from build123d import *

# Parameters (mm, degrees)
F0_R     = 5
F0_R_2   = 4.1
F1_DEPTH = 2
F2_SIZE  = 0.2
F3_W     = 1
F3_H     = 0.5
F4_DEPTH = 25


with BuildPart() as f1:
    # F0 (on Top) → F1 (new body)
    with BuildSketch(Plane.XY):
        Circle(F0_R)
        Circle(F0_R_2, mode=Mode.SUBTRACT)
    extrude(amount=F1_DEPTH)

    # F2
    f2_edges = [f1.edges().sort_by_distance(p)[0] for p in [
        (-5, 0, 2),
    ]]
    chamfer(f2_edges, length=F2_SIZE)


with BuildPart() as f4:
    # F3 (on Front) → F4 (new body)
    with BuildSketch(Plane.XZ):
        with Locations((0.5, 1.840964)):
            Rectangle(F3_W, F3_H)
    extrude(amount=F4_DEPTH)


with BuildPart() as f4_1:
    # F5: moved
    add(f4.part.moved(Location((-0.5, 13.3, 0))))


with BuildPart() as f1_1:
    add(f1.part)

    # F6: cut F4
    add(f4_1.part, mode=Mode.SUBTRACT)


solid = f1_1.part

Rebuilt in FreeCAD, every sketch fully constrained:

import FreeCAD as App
import Part
import Sketcher
from FreeCAD import Vector
Q = App.Units.Quantity


def edges_at(feature, points):
    """Names of the edges that pass closest to the given points."""
    edges = feature.Shape.Edges
    near = lambda p: min(range(len(edges)), key=lambda i: edges[i].distToShape(Part.Vertex(*p))[0])
    return sorted({f"Edge{near(p) + 1}" for p in points})


def add_polygon(sketch, points):
    """Adds a closed chain of lines whose ends are joined by coincident constraints."""
    first, n = sketch.GeometryCount, len(points)
    for a, b in zip(points, points[1:] + points[:1]):
        sketch.addGeometry(Part.LineSegment(App.Vector(*a, 0), App.Vector(*b, 0)), False)
    for i in range(n):
        sketch.addConstraint(Sketcher.Constraint("Coincident", first + i, 2, first + (i + 1) % n, 1))

doc = App.newDocument("Part")
body = doc.addObject("PartDesign::Body", "Body")

# Sketch on XY plane
sketch1 = doc.addObject("Sketcher::SketchObject", "Sketch")
body.addObject(sketch1)
sketch1.AttachmentSupport = (doc.XY_Plane, [""])
sketch1.MapMode = "FlatFace"
sketch1.addGeometry(Part.Circle(Vector(0, 0, 0), Vector(0, 0, 1), 5), False)
sketch1.addGeometry(Part.Circle(Vector(0, 0, 0), Vector(0, 0, 1), 4.1), False)
sketch1.addConstraint(Sketcher.Constraint("Coincident", 0, 3, -1, 1))
sketch1.addConstraint(Sketcher.Constraint("Coincident", 1, 3, -1, 1))
sketch1.addConstraint(Sketcher.Constraint("Diameter", 0, Q("10 mm")))
sketch1.addConstraint(Sketcher.Constraint("Diameter", 1, Q("8.2 mm")))
pad1 = doc.addObject("PartDesign::Pad", "Pad")
body.addObject(pad1)
pad1.Profile = sketch1
pad1.Length = 2
doc.recompute()

chamfer = doc.addObject("PartDesign::Chamfer", "Chamfer")
body.addObject(chamfer)
chamfer.Base = (pad1, edges_at(pad1, [(-5, 0, 2)]))
chamfer.Size = 0.2
body2 = doc.addObject("PartDesign::Body", "Body001")

# Sketch on XZ plane
sketch2 = doc.addObject("Sketcher::SketchObject", "Sketch001")
body2.addObject(sketch2)
sketch2.AttachmentSupport = (doc.getObject("XZ_Plane001"), [""])
sketch2.MapMode = "FlatFace"
add_polygon(sketch2, [(0, 2.090964), (0, 1.590964), (1, 1.590964), (1, 2.090964)])  # lines 0-3
sketch2.addConstraint(Sketcher.Constraint("Vertical", 0))
sketch2.addConstraint(Sketcher.Constraint("Horizontal", 1))
sketch2.addConstraint(Sketcher.Constraint("Vertical", 2))
sketch2.addConstraint(Sketcher.Constraint("Horizontal", 3))
sketch2.addConstraint(Sketcher.Constraint("PointOnObject", 0, 2, -2))
sketch2.addConstraint(Sketcher.Constraint("DistanceX", 1, 1, 1, 2, Q("1 mm")))
sketch2.addConstraint(Sketcher.Constraint("DistanceY", 0, 2, 0, 1, Q("0.5 mm")))
sketch2.addConstraint(Sketcher.Constraint("DistanceY", -1, 1, 0, 2, Q("1.590964 mm")))
pad2 = doc.addObject("PartDesign::Pad", "Pad001")
body2.addObject(pad2)
pad2.Profile = sketch2
pad2.Length = 25
body3 = doc.addObject("PartDesign::Body", "Body002")
doc.recompute()

body2.Placement = App.Placement(Vector(-0.5, 13.3, 0), App.Rotation(Vector(0, 0, 1), 0))
boolean = doc.addObject("PartDesign::Boolean", "Boolean")
body3.addObject(boolean)
boolean.Type = "Fuse"
boolean.addObjects([body2])
doc.recompute()

boolean2 = doc.addObject("PartDesign::Boolean", "Boolean001")
body.addObject(boolean2)
boolean2.Type = "Cut"
boolean2.addObjects([body3])

doc.recompute()
